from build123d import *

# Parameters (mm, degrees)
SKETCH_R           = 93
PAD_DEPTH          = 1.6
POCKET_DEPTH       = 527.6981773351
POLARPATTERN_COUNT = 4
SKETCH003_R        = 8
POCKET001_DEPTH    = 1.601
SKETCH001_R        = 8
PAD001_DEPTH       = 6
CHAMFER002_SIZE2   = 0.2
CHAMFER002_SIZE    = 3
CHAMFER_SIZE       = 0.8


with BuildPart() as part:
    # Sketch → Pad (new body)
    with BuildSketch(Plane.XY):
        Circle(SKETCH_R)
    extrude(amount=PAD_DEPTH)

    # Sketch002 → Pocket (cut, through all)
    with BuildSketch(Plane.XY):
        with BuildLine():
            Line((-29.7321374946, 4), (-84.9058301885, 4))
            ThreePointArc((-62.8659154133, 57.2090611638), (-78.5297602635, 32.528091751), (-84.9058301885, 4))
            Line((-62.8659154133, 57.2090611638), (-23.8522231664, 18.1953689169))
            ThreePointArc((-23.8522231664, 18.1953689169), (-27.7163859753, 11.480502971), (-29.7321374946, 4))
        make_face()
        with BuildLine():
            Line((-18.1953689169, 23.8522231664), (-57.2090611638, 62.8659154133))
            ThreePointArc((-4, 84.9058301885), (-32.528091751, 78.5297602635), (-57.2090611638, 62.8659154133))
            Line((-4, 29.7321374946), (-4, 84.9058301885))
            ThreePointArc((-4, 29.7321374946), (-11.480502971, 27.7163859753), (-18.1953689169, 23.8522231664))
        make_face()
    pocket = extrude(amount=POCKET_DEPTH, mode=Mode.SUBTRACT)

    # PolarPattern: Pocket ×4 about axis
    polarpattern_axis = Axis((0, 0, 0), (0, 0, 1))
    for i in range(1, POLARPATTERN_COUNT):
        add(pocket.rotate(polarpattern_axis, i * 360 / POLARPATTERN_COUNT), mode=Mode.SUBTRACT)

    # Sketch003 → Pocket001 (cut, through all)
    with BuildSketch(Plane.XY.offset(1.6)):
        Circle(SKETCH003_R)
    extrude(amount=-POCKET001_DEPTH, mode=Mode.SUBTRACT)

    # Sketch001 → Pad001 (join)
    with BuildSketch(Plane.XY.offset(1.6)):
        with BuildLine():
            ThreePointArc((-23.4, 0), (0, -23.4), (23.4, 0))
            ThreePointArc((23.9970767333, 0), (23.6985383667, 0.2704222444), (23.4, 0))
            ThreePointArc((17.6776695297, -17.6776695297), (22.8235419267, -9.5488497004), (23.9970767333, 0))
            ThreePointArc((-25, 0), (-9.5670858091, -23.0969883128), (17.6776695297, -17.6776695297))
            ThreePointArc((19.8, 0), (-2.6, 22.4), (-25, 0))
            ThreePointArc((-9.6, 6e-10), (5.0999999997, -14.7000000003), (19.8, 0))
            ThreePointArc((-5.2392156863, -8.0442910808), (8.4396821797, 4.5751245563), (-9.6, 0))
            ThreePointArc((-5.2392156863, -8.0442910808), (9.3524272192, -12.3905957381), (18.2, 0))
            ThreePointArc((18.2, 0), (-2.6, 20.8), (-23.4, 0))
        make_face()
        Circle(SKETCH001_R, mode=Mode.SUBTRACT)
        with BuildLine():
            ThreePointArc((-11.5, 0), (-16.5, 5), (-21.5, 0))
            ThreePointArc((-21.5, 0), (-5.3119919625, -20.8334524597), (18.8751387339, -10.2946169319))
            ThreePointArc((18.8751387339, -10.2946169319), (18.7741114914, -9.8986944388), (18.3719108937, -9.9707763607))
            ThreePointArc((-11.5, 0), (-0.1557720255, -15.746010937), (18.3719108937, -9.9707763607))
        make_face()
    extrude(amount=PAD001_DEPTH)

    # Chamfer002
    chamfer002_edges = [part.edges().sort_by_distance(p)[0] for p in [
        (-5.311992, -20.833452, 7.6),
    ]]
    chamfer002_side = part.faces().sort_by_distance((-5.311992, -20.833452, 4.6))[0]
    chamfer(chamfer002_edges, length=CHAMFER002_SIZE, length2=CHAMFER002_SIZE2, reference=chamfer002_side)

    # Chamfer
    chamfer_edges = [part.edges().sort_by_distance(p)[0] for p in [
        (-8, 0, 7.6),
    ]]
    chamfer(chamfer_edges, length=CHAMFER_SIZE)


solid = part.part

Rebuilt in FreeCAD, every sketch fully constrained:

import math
import FreeCAD as App
import Part
import Sketcher
Q = App.Units.Quantity


def edges_at(feature, points):
    """Names of the edges that pass closest to the given points."""
    edges = feature.Shape.Edges
    near = lambda p: min(range(len(edges)), key=lambda i: edges[i].distToShape(Part.Vertex(*p))[0])
    return sorted({f"Edge{near(p) + 1}" for p in points})

doc = App.newDocument("Part")
body = doc.addObject("PartDesign::Body", "Body")

# Sketch on XY plane
sketch1 = body.newObject("Sketcher::SketchObject", "Sketch")
sketch1.AttachmentSupport = (doc.getObject("XY_Plane"), [""])
sketch1.MapMode = "FlatFace"
sketch1.addGeometry(Part.Circle(App.Vector(0, 0, 0), App.Vector(0, 0, 1), 93), False)
sketch1.addConstraint([
    Sketcher.Constraint("Coincident", 0, 3, -1, 1),
    Sketcher.Constraint("Diameter", 0, 186.0),
])
pad1 = body.newObject("PartDesign::Pad", "Pad")
pad1.Profile = sketch1
pad1.Length = 1.6

# Sketch on XY plane
sketch2 = body.newObject("Sketcher::SketchObject", "Sketch001")
sketch2.AttachmentSupport = (doc.getObject("XY_Plane"), [""])
sketch2.MapMode = "FlatFace"
sketch2.addGeometry([
    Part.LineSegment(App.Vector(-84.90583, 4, 0), App.Vector(-29.732137, 4, 0)),  # 0
    Part.ArcOfCircle(Part.Circle(App.Vector(0, 0, 0), App.Vector(0, 0, 1), 30), math.radians(142.662256), math.radians(172.337744)),  # 1
    Part.LineSegment(App.Vector(-23.852223, 18.195369, 0), App.Vector(-62.865915, 57.209061, 0)),  # 2
    Part.ArcOfCircle(Part.Circle(App.Vector(0, 0, 0), App.Vector(0, 0, 1), 85), math.radians(137.697268), math.radians(177.302732)),  # 3
    Part.LineSegment(App.Vector(-57.209061, 62.865915, 0), App.Vector(-18.195369, 23.852223, 0)),  # 4
    Part.ArcOfCircle(Part.Circle(App.Vector(0, 0, 0), App.Vector(0, 0, 1), 30), math.radians(97.662256), math.radians(127.337744)),  # 5
    Part.LineSegment(App.Vector(-4, 29.732137, 0), App.Vector(-4, 84.90583, 0)),  # 6
    Part.ArcOfCircle(Part.Circle(App.Vector(0, 0, 0), App.Vector(0, 0, 1), 85), math.radians(92.697268), math.radians(132.302732)),  # 7
], False)
sketch2.addConstraint([
    Sketcher.Constraint("Coincident", 0, 2, 1, 2),
    Sketcher.Constraint("Coincident", 1, 1, 2, 1),
    Sketcher.Constraint("Coincident", 2, 2, 3, 1),
    Sketcher.Constraint("Coincident", 3, 2, 0, 1),
    Sketcher.Constraint("Coincident", 4, 2, 5, 2),
    Sketcher.Constraint("Coincident", 5, 1, 6, 1),
    Sketcher.Constraint("Coincident", 6, 2, 7, 1),
    Sketcher.Constraint("Coincident", 7, 2, 4, 1),
    Sketcher.Constraint("Horizontal", 0),
    Sketcher.Constraint("Vertical", 6),
    Sketcher.Constraint("Coincident", 1, 3, -1, 1),
    Sketcher.Constraint("Coincident", 3, 3, -1, 1),
    Sketcher.Constraint("Coincident", 5, 3, -1, 1),
    Sketcher.Constraint("Coincident", 7, 3, -1, 1),
    Sketcher.Constraint("Equal", 1, 5),
    Sketcher.Constraint("Equal", 3, 7),
    Sketcher.Constraint("Parallel", 2, 4),
    Sketcher.Constraint("Equal", 0, 6),
    Sketcher.Constraint("Equal", 2, 4),
    Sketcher.Constraint("Radius", 1, 30.0),
    Sketcher.Constraint("Radius", 3, 85.0),
    Sketcher.Constraint("Angle", 2, Q("135 deg")),
    Sketcher.Constraint("DistanceY", -1, 1, 0, 2, 4.0),
    Sketcher.Constraint("DistanceY", -1, 1, 1, 1, 18.195369),
])
pocket1 = body.newObject("PartDesign::Pocket", "Pocket")
pocket1.Profile = sketch2
pocket1.Type = "ThroughAll"
pocket1.Reversed = True
doc.recompute()

polarpattern = body.newObject("PartDesign::PolarPattern", "PolarPattern")
polarpattern.Originals = [pocket1]
polarpattern.Axis = (doc.getObject("Z_Axis"), [""])
polarpattern.Angle = 360
polarpattern.Occurrences = 4
body.Tip = polarpattern

# Sketch on XY plane
sketch3 = body.newObject("Sketcher::SketchObject", "Sketch002")
sketch3.AttachmentSupport = (doc.getObject("XY_Plane"), [""])
sketch3.MapMode = "FlatFace"
sketch3.AttachmentOffset = App.Placement(App.Vector(0, 0, 1.6), App.Rotation())
sketch3.addGeometry(Part.Circle(App.Vector(0, 0, 0), App.Vector(0, 0, 1), 8), False)
sketch3.addConstraint([
    Sketcher.Constraint("Coincident", 0, 3, -1, 1),
    Sketcher.Constraint("Diameter", 0, 16.0),
])
pocket2 = body.newObject("PartDesign::Pocket", "Pocket001")
pocket2.Profile = sketch3
pocket2.Type = "ThroughAll"

# Sketch on XY plane
sketch4 = body.newObject("Sketcher::SketchObject", "Sketch003")
sketch4.AttachmentSupport = (doc.getObject("XY_Plane"), [""])
sketch4.MapMode = "FlatFace"
sketch4.AttachmentOffset = App.Placement(App.Vector(0, 0, 1.6), App.Rotation())
sketch4.addGeometry([
    Part.ArcOfCircle(Part.Circle(App.Vector(0, 0, 0), App.Vector(0, 0, 1), 23.4), math.radians(180), math.radians(360)),  # 0
    Part.ArcOfCircle(Part.Circle(App.Vector(-2.6, 0, 0), App.Vector(0, 0, 1), 20.8), math.radians(0), math.radians(180)),  # 1
    Part.ArcOfCircle(Part.Circle(App.Vector(5.1, 0, 0), App.Vector(0, 0, 1), 13.1), math.radians(-142.115768), math.radians(0)),  # 2
    Part.ArcOfCircle(Part.Circle(App.Vector(0, 0, 0), App.Vector(0, 0, 1), 9.6), math.radians(-123.076043), math.radians(180)),  # 3
    Part.ArcOfCircle(Part.Circle(App.Vector(5.1, 0, 0), App.Vector(0, 0, 1), 14.7), math.radians(180), math.radians(360)),  # 4
    Part.ArcOfCircle(Part.Circle(App.Vector(-2.6, 0, 0), App.Vector(0, 0, 1), 22.4), math.radians(0), math.radians(180)),  # 5
    Part.ArcOfCircle(Part.Circle(App.Vector(0, 0, 0), App.Vector(0, 0, 1), 25), math.radians(180), math.radians(315)),  # 6
    Part.ArcOfCircle(Part.Circle(App.Vector(2.163197, -2.163197, 0), App.Vector(0, 0, 1), 21.940778), math.radians(-45), math.radians(5.658127)),  # 7
    Part.ArcOfCircle(Part.Circle(App.Vector(23.698538, -0.029578, 0), App.Vector(0, 0, 1), 0.3), math.radians(5.658127), math.radians(174.341873)),  # 8
    Part.Circle(App.Vector(0, 0, 0), App.Vector(0, 0, 1), 8),  # 9
    Part.ArcOfCircle(Part.Circle(App.Vector(-16.5, 0, 0), App.Vector(0, 0, 1), 5), math.radians(0), math.radians(180)),  # 10
    Part.ArcOfCircle(Part.Circle(App.Vector(0, 0, 0), App.Vector(0, 0, 1), 21.5), math.radians(180), math.radians(331.391677)),  # 11
    Part.ArcOfCircle(Part.Circle(App.Vector(18.611765, -10.150971, 0), App.Vector(0, 0, 1), 0.3), math.radians(-28.608323), math.radians(143.083594)),  # 12
    Part.ArcOfCircle(Part.Circle(App.Vector(5.1, 0, 0), App.Vector(0, 0, 1), 16.6), math.radians(180), math.radians(323.083594)),  # 13
], False)
sketch4.addConstraint([
    Sketcher.Constraint("Tangent", 0, 1, 1, 2),
    Sketcher.Constraint("Tangent", 1, 1, 2, 2),
    Sketcher.Constraint("Coincident", 2, 1, 3, 1),
    Sketcher.Constraint("Tangent", 3, 2, 4, 1),
    Sketcher.Constraint("Tangent", 4, 2, 5, 1),
    Sketcher.Constraint("Tangent", 5, 2, 6, 1),
    Sketcher.Constraint("Tangent", 6, 2, 7, 1),
    Sketcher.Constraint("Tangent", 7, 2, 8, 1),
    Sketcher.Constraint("Coincident", 8, 2, 0, 2),
    Sketcher.Constraint("Tangent", 10, 2, 11, 1),
    Sketcher.Constraint("Tangent", 11, 2, 12, 1),
    Sketcher.Constraint("Tangent", 12, 2, 13, 2),
    Sketcher.Constraint("Tangent", 13, 1, 10, 1),
    Sketcher.Constraint("Coincident", 0, 3, -1, 1),
    Sketcher.Constraint("Coincident", 3, 3, -1, 1),
    Sketcher.Constraint("Coincident", 6, 3, -1, 1),
    Sketcher.Constraint("Coincident", 9, 3, -1, 1),
    Sketcher.Constraint("Coincident", 11, 3, -1, 1),
    Sketcher.Constraint("Coincident", 4, 3, 2, 3),
    Sketcher.Constraint("Coincident", 5, 3, 1, 3),
    Sketcher.Constraint("Coincident", 13, 3, 2, 3),
    Sketcher.Constraint("Equal", 8, 12),
    Sketcher.Constraint("PointOnObject", 1, 3, -1),
    Sketcher.Constraint("PointOnObject", 2, 3, -1),
    Sketcher.Constraint("PointOnObject", 10, 3, -1),
    Sketcher.Constraint("PointOnObject", 7, 2, -1),
    Sketcher.Constraint("PointOnObject", 8, 2, -1),
    Sketcher.Constraint("Diameter", 9, 16.0),
    Sketcher.Constraint("Radius", 6, 25.0),
    Sketcher.Constraint("Radius", 10, 5.0),
    Sketcher.Constraint("Radius", 0, 23.4),
    Sketcher.Constraint("Radius", 1, 20.8),
    Sketcher.Constraint("Radius", 2, 13.1),
    Sketcher.Constraint("Radius", 8, 0.3),
    Sketcher.Constraint("Radius", 11, 21.5),
    Sketcher.Constraint("Radius", 7, 21.940778),
])
pad2 = body.newObject("PartDesign::Pad", "Pad001")
pad2.Profile = sketch4
pad2.Length = 6
doc.recompute()

chamfer = body.newObject("PartDesign::Chamfer", "Chamfer")
chamfer.Base = (pad2, edges_at(pad2, [(-5.312, -20.833, 7.6)]))
chamfer.ChamferType = "Two distances"
chamfer.Size = 3
chamfer.Size2 = 0.2
doc.recompute()

chamfer2 = body.newObject("PartDesign::Chamfer", "Chamfer001")
chamfer2.Base = (chamfer, edges_at(chamfer, [(-8, 0, 7.6)]))
chamfer2.Size = 0.8

doc.recompute()
